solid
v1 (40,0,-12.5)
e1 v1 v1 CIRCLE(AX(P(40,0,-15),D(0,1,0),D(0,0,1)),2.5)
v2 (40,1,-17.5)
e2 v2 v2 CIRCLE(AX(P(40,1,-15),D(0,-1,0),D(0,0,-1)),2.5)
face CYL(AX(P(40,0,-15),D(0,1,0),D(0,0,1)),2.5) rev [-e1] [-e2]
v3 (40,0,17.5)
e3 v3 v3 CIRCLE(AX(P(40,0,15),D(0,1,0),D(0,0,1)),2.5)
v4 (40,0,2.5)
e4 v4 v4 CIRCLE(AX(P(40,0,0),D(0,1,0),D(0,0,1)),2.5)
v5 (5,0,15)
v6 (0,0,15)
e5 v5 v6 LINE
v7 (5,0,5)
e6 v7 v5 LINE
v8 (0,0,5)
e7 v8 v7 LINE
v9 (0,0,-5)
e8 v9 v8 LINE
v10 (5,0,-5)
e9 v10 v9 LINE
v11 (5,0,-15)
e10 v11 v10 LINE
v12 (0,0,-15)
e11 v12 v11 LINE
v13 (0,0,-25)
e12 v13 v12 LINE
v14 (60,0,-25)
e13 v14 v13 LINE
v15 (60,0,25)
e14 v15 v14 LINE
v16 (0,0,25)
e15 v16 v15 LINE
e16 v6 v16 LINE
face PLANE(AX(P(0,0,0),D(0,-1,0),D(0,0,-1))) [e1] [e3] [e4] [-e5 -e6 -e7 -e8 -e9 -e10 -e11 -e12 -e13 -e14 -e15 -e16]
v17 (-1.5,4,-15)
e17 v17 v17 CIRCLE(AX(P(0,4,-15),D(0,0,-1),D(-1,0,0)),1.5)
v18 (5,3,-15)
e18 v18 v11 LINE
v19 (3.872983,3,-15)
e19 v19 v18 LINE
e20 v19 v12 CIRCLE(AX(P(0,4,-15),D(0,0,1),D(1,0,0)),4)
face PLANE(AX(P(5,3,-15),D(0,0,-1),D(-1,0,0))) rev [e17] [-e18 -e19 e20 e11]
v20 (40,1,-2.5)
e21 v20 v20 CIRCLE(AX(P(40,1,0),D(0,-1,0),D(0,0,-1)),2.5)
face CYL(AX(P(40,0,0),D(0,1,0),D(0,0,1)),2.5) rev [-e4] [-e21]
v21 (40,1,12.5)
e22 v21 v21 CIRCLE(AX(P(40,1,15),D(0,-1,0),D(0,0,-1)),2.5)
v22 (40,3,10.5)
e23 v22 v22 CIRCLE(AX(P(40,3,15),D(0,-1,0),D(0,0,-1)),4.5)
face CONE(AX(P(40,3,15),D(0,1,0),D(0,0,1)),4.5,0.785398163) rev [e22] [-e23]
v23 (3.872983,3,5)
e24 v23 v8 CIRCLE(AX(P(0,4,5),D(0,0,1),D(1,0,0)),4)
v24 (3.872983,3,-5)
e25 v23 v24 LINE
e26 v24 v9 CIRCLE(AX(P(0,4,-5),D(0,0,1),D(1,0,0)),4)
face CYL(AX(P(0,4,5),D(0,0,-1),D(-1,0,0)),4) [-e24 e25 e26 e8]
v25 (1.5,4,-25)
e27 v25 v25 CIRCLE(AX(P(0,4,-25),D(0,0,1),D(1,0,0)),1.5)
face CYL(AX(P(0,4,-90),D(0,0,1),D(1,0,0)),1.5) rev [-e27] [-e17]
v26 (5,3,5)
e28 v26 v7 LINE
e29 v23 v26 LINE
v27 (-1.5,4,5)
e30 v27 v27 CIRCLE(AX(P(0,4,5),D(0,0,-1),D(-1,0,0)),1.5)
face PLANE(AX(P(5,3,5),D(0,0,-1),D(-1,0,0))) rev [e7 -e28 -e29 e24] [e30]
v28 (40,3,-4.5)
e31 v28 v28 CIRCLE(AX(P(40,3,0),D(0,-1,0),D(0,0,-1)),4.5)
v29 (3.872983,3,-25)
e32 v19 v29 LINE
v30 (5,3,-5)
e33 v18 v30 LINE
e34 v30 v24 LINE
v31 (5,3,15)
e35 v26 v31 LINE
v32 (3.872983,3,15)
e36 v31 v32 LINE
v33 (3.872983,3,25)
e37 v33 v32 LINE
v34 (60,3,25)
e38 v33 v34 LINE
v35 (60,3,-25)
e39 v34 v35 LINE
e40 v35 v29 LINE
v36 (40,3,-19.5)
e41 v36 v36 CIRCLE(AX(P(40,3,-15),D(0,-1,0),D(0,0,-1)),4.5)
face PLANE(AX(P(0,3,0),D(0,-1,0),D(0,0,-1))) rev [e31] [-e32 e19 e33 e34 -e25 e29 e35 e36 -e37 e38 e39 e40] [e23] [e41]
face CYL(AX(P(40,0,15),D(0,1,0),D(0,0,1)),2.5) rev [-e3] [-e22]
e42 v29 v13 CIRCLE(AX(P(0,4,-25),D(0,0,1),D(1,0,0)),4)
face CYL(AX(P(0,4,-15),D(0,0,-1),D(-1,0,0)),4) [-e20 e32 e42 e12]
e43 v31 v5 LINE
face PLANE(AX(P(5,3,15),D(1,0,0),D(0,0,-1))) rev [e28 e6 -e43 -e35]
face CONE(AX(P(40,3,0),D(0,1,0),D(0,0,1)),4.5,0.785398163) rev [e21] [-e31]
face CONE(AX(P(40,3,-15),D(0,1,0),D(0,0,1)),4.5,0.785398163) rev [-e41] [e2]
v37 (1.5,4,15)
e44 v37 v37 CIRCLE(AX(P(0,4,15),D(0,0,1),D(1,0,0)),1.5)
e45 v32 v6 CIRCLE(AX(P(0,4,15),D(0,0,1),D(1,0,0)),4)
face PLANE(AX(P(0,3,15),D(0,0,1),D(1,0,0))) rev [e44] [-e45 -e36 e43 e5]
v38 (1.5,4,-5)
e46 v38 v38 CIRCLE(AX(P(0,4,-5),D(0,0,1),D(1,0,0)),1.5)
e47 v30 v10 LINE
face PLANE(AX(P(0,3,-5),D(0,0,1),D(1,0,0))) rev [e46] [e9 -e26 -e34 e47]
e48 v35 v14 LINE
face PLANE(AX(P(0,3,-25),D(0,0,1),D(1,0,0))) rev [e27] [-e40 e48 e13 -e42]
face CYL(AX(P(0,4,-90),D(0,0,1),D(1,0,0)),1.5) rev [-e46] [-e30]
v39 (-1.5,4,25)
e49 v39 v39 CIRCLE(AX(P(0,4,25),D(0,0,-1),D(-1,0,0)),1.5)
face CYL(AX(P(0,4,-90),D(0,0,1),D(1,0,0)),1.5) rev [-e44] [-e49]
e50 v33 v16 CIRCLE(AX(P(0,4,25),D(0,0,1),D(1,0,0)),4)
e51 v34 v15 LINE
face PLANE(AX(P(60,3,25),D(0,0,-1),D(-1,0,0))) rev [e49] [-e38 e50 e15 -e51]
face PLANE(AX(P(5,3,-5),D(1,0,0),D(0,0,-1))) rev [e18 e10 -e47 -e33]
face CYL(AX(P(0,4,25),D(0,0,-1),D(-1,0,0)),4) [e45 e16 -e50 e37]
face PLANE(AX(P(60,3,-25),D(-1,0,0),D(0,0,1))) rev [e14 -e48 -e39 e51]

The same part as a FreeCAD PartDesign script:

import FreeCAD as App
import Part
import Sketcher
Q = App.Units.Quantity

doc = App.newDocument("Part")
body = doc.addObject("PartDesign::Body", "Body")

sketch1 = body.newObject("Sketcher::SketchObject", "Sketch")
sketch1.AttachmentSupport = (doc.getObject("XZ_Plane"), [""])
sketch1.MapMode = "FlatFace"
sketch1.addGeometry([
    Part.LineSegment(App.Vector(60, -25, 0), App.Vector(0, -25, 0)),
    Part.LineSegment(App.Vector(0, -25, 0), App.Vector(0, -15, 0)),
    Part.LineSegment(App.Vector(0, -15, 0), App.Vector(5, -15, 0)),
    Part.LineSegment(App.Vector(5, -15, 0), App.Vector(5, -5, 0)),
    Part.LineSegment(App.Vector(5, -5, 0), App.Vector(0, -5, 0)),
    Part.LineSegment(App.Vector(0, -5, 0), App.Vector(0, 5, 0)),
    Part.LineSegment(App.Vector(0, 5, 0), App.Vector(5, 5, 0)),
    Part.LineSegment(App.Vector(5, 5, 0), App.Vector(5, 15, 0)),
    Part.LineSegment(App.Vector(5, 15, 0), App.Vector(0, 15, 0)),
    Part.LineSegment(App.Vector(0, 15, 0), App.Vector(0, 25, 0)),
    Part.LineSegment(App.Vector(0, 25, 0), App.Vector(60, 25, 0)),
    Part.LineSegment(App.Vector(60, 25, 0), App.Vector(60, -25, 0)),
], False)
sketch1.addConstraint([
    Sketcher.Constraint("Coincident", 0, 2, 1, 1),
    Sketcher.Constraint("Coincident", 1, 2, 2, 1),
    Sketcher.Constraint("Coincident", 2, 2, 3, 1),
    Sketcher.Constraint("Coincident", 3, 2, 4, 1),
    Sketcher.Constraint("Coincident", 4, 2, 5, 1),
    Sketcher.Constraint("Coincident", 5, 2, 6, 1),
    Sketcher.Constraint("Coincident", 6, 2, 7, 1),
    Sketcher.Constraint("Coincident", 7, 2, 8, 1),
    Sketcher.Constraint("Coincident", 8, 2, 9, 1),
    Sketcher.Constraint("Coincident", 9, 2, 10, 1),
    Sketcher.Constraint("Coincident", 10, 2, 11, 1),
    Sketcher.Constraint("Coincident", 11, 2, 0, 1),
    Sketcher.Constraint("Horizontal", 0),
    Sketcher.Constraint("Vertical", 1),
    Sketcher.Constraint("Horizontal", 2),
    Sketcher.Constraint("Vertical", 3),
    Sketcher.Constraint("Horizontal", 4),
    Sketcher.Constraint("Vertical", 5),
    Sketcher.Constraint("Horizontal", 6),
    Sketcher.Constraint("Vertical", 7),
    Sketcher.Constraint("Horizontal", 8),
    Sketcher.Constraint("Vertical", 9),
    Sketcher.Constraint("Horizontal", 10),
    Sketcher.Constraint("Vertical", 11),
    Sketcher.Constraint("Symmetric", 4, 2, 5, 2, -1, 1),
    Sketcher.Constraint("Symmetric", 1, 2, 8, 2, -1, 1),
    Sketcher.Constraint("Symmetric", 0, 2, 9, 2, -1),
    Sketcher.Constraint("Vertical", 3, 2, 6, 2),
    Sketcher.Constraint("Equal", 1, 3),
    Sketcher.Constraint("Equal", 3, 5),
    Sketcher.Constraint("DistanceX", 0, 2, 0, 1, Q("60 mm")),
    Sketcher.Constraint("DistanceX", 2, 1, 2, 2, Q("5 mm")),
    Sketcher.Constraint("DistanceY", 1, 1, 1, 2, Q("10 mm")),
])
pad1 = body.newObject("PartDesign::Pad", "Pad")
pad1.Profile = sketch1
pad1.Length = 3
pad1.Reversed = True

sketch2 = body.newObject("Sketcher::SketchObject", "Sketch001")
sketch2.AttachmentSupport = (doc.getObject("XY_Plane"), [""])
sketch2.MapMode = "FlatFace"
sketch2.AttachmentOffset = App.Placement(App.Vector(0, 0, -25), App.Rotation())
sketch2.addGeometry(Part.Circle(App.Vector(0, 4, 0), App.Vector(0, 0, 1), 4), False)
sketch2.addConstraint([
    Sketcher.Constraint("PointOnObject", 0, 3, -2),
    Sketcher.Constraint("Diameter", 0, Q("8 mm")),
    Sketcher.Constraint("DistanceY", -1, 1, 0, 3, Q("4 mm")),
])
pad2 = body.newObject("PartDesign::Pad", "Pad001")
pad2.Profile = sketch2
pad2.Length = 10
doc.recompute()

linearpattern = body.newObject("PartDesign::LinearPattern", "LinearPattern")
linearpattern.Originals = [pad2]
linearpattern.Direction = (doc.getObject("Z_Axis"), [""])
linearpattern.Mode = "offset"
linearpattern.Offset = 20
linearpattern.Occurrences = 3
body.Tip = linearpattern

sketch3 = body.newObject("Sketcher::SketchObject", "Sketch002")
sketch3.AttachmentSupport = (doc.getObject("XY_Plane"), [""])
sketch3.MapMode = "FlatFace"
sketch3.AttachmentOffset = App.Placement(App.Vector(0, 0, -25), App.Rotation())
sketch3.addGeometry(Part.Circle(App.Vector(0, 4, 0), App.Vector(0, 0, 1), 1.5), False)
sketch3.addConstraint([
    Sketcher.Constraint("PointOnObject", 0, 3, -2),
    Sketcher.Constraint("Diameter", 0, Q("3 mm")),
    Sketcher.Constraint("DistanceY", -1, 1, 0, 3, Q("4 mm")),
])
pocket1 = body.newObject("PartDesign::Pocket", "Pocket")
pocket1.Profile = sketch3
pocket1.Length = 130
pocket1.Midplane = True

sketch4 = body.newObject("Sketcher::SketchObject", "Sketch003")
sketch4.AttachmentSupport = (doc.getObject("XZ_Plane"), [""])
sketch4.MapMode = "FlatFace"
sketch4.AttachmentOffset = App.Placement(App.Vector(0, 0, -3), App.Rotation())
sketch4.addGeometry([
    Part.Circle(App.Vector(40, -15, 0), App.Vector(0, 0, 1), 2.5),
    Part.Circle(App.Vector(40, 0, 0), App.Vector(0, 0, 1), 2.5),
    Part.Circle(App.Vector(40, 15, 0), App.Vector(0, 0, 1), 2.5),
], False)
sketch4.addConstraint([
    Sketcher.Constraint("Equal", 0, 1),
    Sketcher.Constraint("Equal", 1, 2),
    Sketcher.Constraint("Symmetric", 0, 3, 2, 3, -1),
    Sketcher.Constraint("PointOnObject", 1, 3, -1),
    Sketcher.Constraint("Vertical", 0, 3, 1, 3),
    Sketcher.Constraint("Diameter", 0, Q("5 mm")),
    Sketcher.Constraint("DistanceX", -1, 1, 0, 3, Q("40 mm")),
    Sketcher.Constraint("DistanceY", 0, 3, -1, 1, Q("15 mm")),
])
pocket2 = body.newObject("PartDesign::Pocket", "Pocket001")
pocket2.Profile = sketch4
pocket2.Type = "ThroughAll"
pocket2.Reversed = True

sketch5 = body.newObject("Sketcher::SketchObject", "Sketch004")
sketch5.AttachmentSupport = (doc.getObject("YZ_Plane"), [""])
sketch5.MapMode = "FlatFace"
sketch5.AttachmentOffset = App.Placement(App.Vector(0, 0, 40), App.Rotation())
sketch5.addGeometry([
    Part.LineSegment(App.Vector(3, -12.5, 0), App.Vector(3, -10.5, 0)),
    Part.LineSegment(App.Vector(3, -10.5, 0), App.Vector(1, -12.5, 0)),
    Part.LineSegment(App.Vector(1, -12.5, 0), App.Vector(3, -12.5, 0)),
], False)
sketch5.addGeometry(Part.LineSegment(App.Vector(1, -15, 0), App.Vector(3, -15, 0)), True)
sketch5.addConstraint([
    Sketcher.Constraint("Coincident", 0, 2, 1, 1),
    Sketcher.Constraint("Coincident", 1, 2, 2, 1),
    Sketcher.Constraint("Coincident", 2, 2, 0, 1),
    Sketcher.Constraint("Vertical", 0),
    Sketcher.Constraint("Horizontal", 2),
    Sketcher.Constraint("Horizontal", 3),
    Sketcher.Constraint("Vertical", 1, 2, 3, 1),
    Sketcher.Constraint("Vertical", 2, 2, 3, 2),
    Sketcher.Constraint("Equal", 3, 0),
    Sketcher.Constraint("DistanceX", 2, 1, 2, 2, Q("2 mm")),
    Sketcher.Constraint("DistanceX", -1, 1, 0, 2, Q("3 mm")),
    Sketcher.Constraint("DistanceY", 3, 1, -1, 1, Q("15 mm")),
    Sketcher.Constraint("DistanceY", 0, 2, -1, 1, Q("10.5 mm")),
])
groove = body.newObject("PartDesign::Groove", "Groove")
groove.Profile = sketch5
groove.ReferenceAxis = (sketch5, ["Axis0"])
groove.Angle = 360

sketch6 = body.newObject("Sketcher::SketchObject", "Sketch005")
sketch6.AttachmentSupport = (doc.getObject("YZ_Plane"), [""])
sketch6.MapMode = "FlatFace"
sketch6.AttachmentOffset = App.Placement(App.Vector(0, 0, 40), App.Rotation())
sketch6.addGeometry([
    Part.LineSegment(App.Vector(3, 2.5, 0), App.Vector(3, 4.5, 0)),
    Part.LineSegment(App.Vector(3, 4.5, 0), App.Vector(1, 2.5, 0)),
    Part.LineSegment(App.Vector(1, 2.5, 0), App.Vector(3, 2.5, 0)),
], False)
sketch6.addConstraint([
    Sketcher.Constraint("Coincident", 0, 2, 1, 1),
    Sketcher.Constraint("Coincident", 1, 2, 2, 1),
    Sketcher.Constraint("Coincident", 2, 2, 0, 1),
    Sketcher.Constraint("Vertical", 0),
    Sketcher.Constraint("Horizontal", 2),
    Sketcher.Constraint("Equal", 2, 0),
    Sketcher.Constraint("DistanceX", 2, 1, 2, 2, Q("2 mm")),
    Sketcher.Constraint("DistanceX", -1, 1, 0, 2, Q("3 mm")),
    Sketcher.Constraint("DistanceY", -1, 1, 0, 2, Q("4.5 mm")),
])
groove2 = body.newObject("PartDesign::Groove", "Groove001")
groove2.Profile = sketch6
groove2.ReferenceAxis = (sketch6, ["H_Axis"])
groove2.Angle = 360

sketch7 = body.newObject("Sketcher::SketchObject", "Sketch006")
sketch7.AttachmentSupport = (doc.getObject("YZ_Plane"), [""])
sketch7.MapMode = "FlatFace"
sketch7.AttachmentOffset = App.Placement(App.Vector(0, 0, 40), App.Rotation())
sketch7.addGeometry([
    Part.LineSegment(App.Vector(3, 17.5, 0), App.Vector(3, 19.5, 0)),
    Part.LineSegment(App.Vector(3, 19.5, 0), App.Vector(1, 17.5, 0)),
    Part.LineSegment(App.Vector(1, 17.5, 0), App.Vector(3, 17.5, 0)),
], False)
sketch7.addGeometry(Part.LineSegment(App.Vector(1, 15, 0), App.Vector(3, 15, 0)), True)
sketch7.addConstraint([
    Sketcher.Constraint("Coincident", 0, 2, 1, 1),
    Sketcher.Constraint("Coincident", 1, 2, 2, 1),
    Sketcher.Constraint("Coincident", 2, 2, 0, 1),
    Sketcher.Constraint("Vertical", 0),
    Sketcher.Constraint("Horizontal", 2),
    Sketcher.Constraint("Horizontal", 3),
    Sketcher.Constraint("Vertical", 1, 2, 3, 1),
    Sketcher.Constraint("Vertical", 2, 2, 3, 2),
    Sketcher.Constraint("Equal", 3, 0),
    Sketcher.Constraint("DistanceX", 2, 1, 2, 2, Q("2 mm")),
    Sketcher.Constraint("DistanceX", -1, 1, 0, 2, Q("3 mm")),
    Sketcher.Constraint("DistanceY", -1, 1, 3, 1, Q("15 mm")),
    Sketcher.Constraint("DistanceY", -1, 1, 0, 2, Q("19.5 mm")),
])
groove3 = body.newObject("PartDesign::Groove", "Groove002")
groove3.Profile = sketch7
groove3.ReferenceAxis = (sketch7, ["Axis0"])
groove3.Angle = 360

doc.recompute()
